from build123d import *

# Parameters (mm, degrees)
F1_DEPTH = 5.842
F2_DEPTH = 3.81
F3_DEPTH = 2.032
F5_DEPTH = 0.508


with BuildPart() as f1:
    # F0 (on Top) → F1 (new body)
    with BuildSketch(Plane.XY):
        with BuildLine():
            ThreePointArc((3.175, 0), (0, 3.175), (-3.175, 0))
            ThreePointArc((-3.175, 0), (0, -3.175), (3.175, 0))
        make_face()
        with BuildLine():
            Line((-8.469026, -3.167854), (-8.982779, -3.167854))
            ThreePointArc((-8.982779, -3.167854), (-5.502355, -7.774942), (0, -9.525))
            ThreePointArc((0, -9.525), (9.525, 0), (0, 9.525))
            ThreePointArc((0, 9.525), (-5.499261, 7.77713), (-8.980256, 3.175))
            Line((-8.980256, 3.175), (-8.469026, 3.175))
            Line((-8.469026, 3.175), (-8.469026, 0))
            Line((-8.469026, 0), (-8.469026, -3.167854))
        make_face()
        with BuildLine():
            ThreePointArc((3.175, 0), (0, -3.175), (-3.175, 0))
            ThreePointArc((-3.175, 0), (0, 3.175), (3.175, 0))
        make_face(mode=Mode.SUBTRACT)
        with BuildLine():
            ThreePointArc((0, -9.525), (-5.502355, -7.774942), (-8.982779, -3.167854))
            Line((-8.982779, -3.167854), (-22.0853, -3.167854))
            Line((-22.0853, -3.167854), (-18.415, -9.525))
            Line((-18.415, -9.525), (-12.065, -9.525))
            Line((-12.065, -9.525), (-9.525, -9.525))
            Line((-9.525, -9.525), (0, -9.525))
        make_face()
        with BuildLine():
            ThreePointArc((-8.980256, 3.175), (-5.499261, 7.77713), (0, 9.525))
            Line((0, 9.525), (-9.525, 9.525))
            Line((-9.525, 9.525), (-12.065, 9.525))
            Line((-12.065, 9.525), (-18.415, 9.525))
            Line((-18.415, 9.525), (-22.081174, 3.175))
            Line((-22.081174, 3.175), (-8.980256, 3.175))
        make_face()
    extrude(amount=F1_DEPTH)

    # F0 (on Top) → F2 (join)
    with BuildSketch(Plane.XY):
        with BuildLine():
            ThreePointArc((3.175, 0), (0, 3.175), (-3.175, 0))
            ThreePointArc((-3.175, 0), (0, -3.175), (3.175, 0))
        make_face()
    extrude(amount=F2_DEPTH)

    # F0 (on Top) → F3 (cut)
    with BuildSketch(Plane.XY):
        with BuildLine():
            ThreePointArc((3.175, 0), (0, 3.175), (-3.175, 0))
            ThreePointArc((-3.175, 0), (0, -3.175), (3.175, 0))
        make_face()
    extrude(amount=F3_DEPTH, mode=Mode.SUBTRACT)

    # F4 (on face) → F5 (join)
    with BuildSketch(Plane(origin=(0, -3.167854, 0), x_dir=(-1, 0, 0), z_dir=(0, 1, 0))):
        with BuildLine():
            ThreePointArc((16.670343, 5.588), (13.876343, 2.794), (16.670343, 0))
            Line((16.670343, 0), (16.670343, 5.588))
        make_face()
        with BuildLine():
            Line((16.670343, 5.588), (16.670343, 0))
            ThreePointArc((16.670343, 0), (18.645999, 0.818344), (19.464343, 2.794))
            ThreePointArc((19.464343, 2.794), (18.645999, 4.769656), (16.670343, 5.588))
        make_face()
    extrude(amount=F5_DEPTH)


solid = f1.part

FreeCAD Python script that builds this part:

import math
import FreeCAD as App
import Part
import Sketcher
Q = App.Units.Quantity

doc = App.newDocument("Part")
body = doc.addObject("PartDesign::Body", "Body")

sketch1 = body.newObject("Sketcher::SketchObject", "Sketch")
sketch1.AttachmentSupport = (doc.getObject("XY_Plane"), [""])
sketch1.MapMode = "FlatFace"
sketch1.addGeometry([
    Part.LineSegment(App.Vector(-8.469026, -3.167854, 0), App.Vector(-22.0853, -3.167854, 0)),
    Part.LineSegment(App.Vector(-22.0853, -3.167854, 0), App.Vector(-18.415, -9.525, 0)),
    Part.LineSegment(App.Vector(-18.415, -9.525, 0), App.Vector(0, -9.525, 0)),
    Part.ArcOfCircle(Part.Circle(App.Vector(0, 0, 0), App.Vector(0, 0, 1), 9.525), math.radians(-90), math.radians(90)),
    Part.LineSegment(App.Vector(0, 9.525, 0), App.Vector(-18.415, 9.525, 0)),
    Part.LineSegment(App.Vector(-18.415, 9.525, 0), App.Vector(-22.081174, 3.175, 0)),
    Part.LineSegment(App.Vector(-22.081174, 3.175, 0), App.Vector(-8.469026, 3.175, 0)),
    Part.LineSegment(App.Vector(-8.469026, 3.175, 0), App.Vector(-8.469026, -3.167854, 0)),
    Part.Circle(App.Vector(0, 0, 0), App.Vector(0, 0, 1), 3.175),
], False)
sketch1.addConstraint([
    Sketcher.Constraint("Coincident", 0, 2, 1, 1),
    Sketcher.Constraint("Coincident", 1, 2, 2, 1),
    Sketcher.Constraint("Tangent", 2, 2, 3, 1),
    Sketcher.Constraint("Tangent", 3, 2, 4, 1),
    Sketcher.Constraint("Coincident", 4, 2, 5, 1),
    Sketcher.Constraint("Coincident", 5, 2, 6, 1),
    Sketcher.Constraint("Coincident", 6, 2, 7, 1),
    Sketcher.Constraint("Coincident", 7, 2, 0, 1),
    Sketcher.Constraint("Horizontal", 0),
    Sketcher.Constraint("Horizontal", 2),
    Sketcher.Constraint("Horizontal", 4),
    Sketcher.Constraint("Horizontal", 6),
    Sketcher.Constraint("Vertical", 7),
    Sketcher.Constraint("Coincident", 3, 3, -1, 1),
    Sketcher.Constraint("Coincident", 8, 3, -1, 1),
    Sketcher.Constraint("Vertical", 1, 2, 4, 2),
    Sketcher.Constraint("Diameter", 8, Q("0.25 in")),
    Sketcher.Constraint("Angle", 1, Q("-60 deg")),
    Sketcher.Constraint("Angle", 5, Q("-119.999999 deg")),
    Sketcher.Constraint("Radius", 3, Q("0.375 in")),
    Sketcher.Constraint("DistanceY", 1, 2, 5, 2, Q("0.5 in")),
    Sketcher.Constraint("DistanceX", 2, 1, 2, 2, Q("0.725 in")),
    Sketcher.Constraint("Distance", 1, Q("0.289 in")),
    Sketcher.Constraint("DistanceX", 6, 1, 6, 2, Q("13.612148 mm")),
])
pad1 = body.newObject("PartDesign::Pad", "Pad")
pad1.Profile = sketch1
pad1.Length = Q("0.23 in")

sketch2 = body.newObject("Sketcher::SketchObject", "Sketch001")
sketch2.AttachmentSupport = (doc.getObject("XY_Plane"), [""])
sketch2.MapMode = "FlatFace"
sketch2.addGeometry(Part.Circle(App.Vector(0, 0, 0), App.Vector(0, 0, 1), 3.175), False)
sketch2.addConstraint([
    Sketcher.Constraint("Coincident", 0, 3, -1, 1),
    Sketcher.Constraint("Diameter", 0, Q("0.25 in")),
])
pad2 = body.newObject("PartDesign::Pad", "Pad001")
pad2.Profile = sketch2
pad2.Length = Q("0.15 in")

sketch3 = body.newObject("Sketcher::SketchObject", "Sketch002")
sketch3.AttachmentSupport = (doc.getObject("XY_Plane"), [""])
sketch3.MapMode = "FlatFace"
sketch3.addGeometry(Part.Circle(App.Vector(0, 0, 0), App.Vector(0, 0, 1), 3.175), False)
sketch3.addConstraint([
    Sketcher.Constraint("Coincident", 0, 3, -1, 1),
    Sketcher.Constraint("Diameter", 0, Q("0.25 in")),
])
pocket1 = body.newObject("PartDesign::Pocket", "Pocket")
pocket1.Profile = sketch3
pocket1.Length = Q("0.08 in")
pocket1.Reversed = True

sketch4 = body.newObject("Sketcher::SketchObject", "Sketch003")
sketch4.AttachmentSupport = (doc.getObject("XZ_Plane"), [""])
sketch4.MapMode = "FlatFace"
sketch4.AttachmentOffset = App.Placement(App.Vector(0, 0, 3.167854), App.Rotation())
sketch4.addGeometry([
    Part.ArcOfCircle(Part.Circle(App.Vector(-16.670343, 2.794, 0), App.Vector(0, 0, 1), 2.794), math.radians(-90), math.radians(90)),
    Part.ArcOfCircle(Part.Circle(App.Vector(-16.670342, 2.794001, 0), App.Vector(0, 0, 1), 2.794001), math.radians(-179.999976), math.radians(-90.000024)),
    Part.ArcOfCircle(Part.Circle(App.Vector(-16.670342, 2.793999, 0), App.Vector(0, 0, 1), 2.794001), math.radians(90.000024), math.radians(179.999976)),
], False)
sketch4.addConstraint([
    Sketcher.Constraint("Tangent", 0, 1, 1, 2),
    Sketcher.Constraint("Tangent", 1, 1, 2, 2),
    Sketcher.Constraint("Tangent", 2, 1, 0, 2),
    Sketcher.Constraint("PointOnObject", 0, 1, -1),
    Sketcher.Constraint("Horizontal", 2, 3, 1, 1),
    Sketcher.Constraint("Vertical", 2, 3, 0, 1),
    Sketcher.Constraint("Vertical", 0, 1, 2, 1),
    Sketcher.Constraint("Radius", 0, Q("0.11 in")),
    Sketcher.Constraint("DistanceX", 1, 3, -1, 1, Q("16.670342 mm")),
])
pad3 = body.newObject("PartDesign::Pad", "Pad002")
pad3.Profile = sketch4
pad3.Length = Q("0.02 in")
pad3.Reversed = True

doc.recompute()
